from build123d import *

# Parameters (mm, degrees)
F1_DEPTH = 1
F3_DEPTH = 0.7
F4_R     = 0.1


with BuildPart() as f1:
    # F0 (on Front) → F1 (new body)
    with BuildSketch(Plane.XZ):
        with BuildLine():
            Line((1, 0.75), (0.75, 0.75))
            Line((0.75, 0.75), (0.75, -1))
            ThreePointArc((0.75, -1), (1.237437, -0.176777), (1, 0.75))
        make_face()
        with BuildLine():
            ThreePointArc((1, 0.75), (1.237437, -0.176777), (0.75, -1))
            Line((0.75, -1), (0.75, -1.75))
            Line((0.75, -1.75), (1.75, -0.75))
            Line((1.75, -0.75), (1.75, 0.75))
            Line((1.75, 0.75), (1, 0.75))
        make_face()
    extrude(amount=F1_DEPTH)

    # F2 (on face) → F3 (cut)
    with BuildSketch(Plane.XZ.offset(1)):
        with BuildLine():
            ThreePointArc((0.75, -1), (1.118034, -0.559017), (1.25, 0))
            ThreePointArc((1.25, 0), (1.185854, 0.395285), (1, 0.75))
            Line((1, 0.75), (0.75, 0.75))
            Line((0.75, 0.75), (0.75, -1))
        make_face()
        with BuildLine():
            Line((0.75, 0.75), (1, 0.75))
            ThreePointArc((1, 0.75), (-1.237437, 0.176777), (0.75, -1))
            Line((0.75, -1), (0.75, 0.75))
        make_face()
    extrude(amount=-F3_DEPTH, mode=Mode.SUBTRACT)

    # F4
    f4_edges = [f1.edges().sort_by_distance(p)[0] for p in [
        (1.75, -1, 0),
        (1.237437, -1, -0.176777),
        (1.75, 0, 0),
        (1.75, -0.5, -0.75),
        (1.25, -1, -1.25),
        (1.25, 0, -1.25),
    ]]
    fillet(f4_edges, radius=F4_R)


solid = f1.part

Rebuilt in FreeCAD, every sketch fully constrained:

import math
import FreeCAD as App
import Part
import Sketcher

V = App.Vector
Q = App.Units.Quantity


def edges_at(feature, points):
    """Names of the edges that pass closest to the given points."""
    edges = feature.Shape.Edges
    near = lambda p: min(range(len(edges)), key=lambda i: edges[i].distToShape(Part.Vertex(*p))[0])
    return sorted({f"Edge{near(p) + 1}" for p in points})


def add_polygon(sketch, points):
    """Adds a closed chain of lines whose ends are joined by coincident constraints."""
    first, n = sketch.GeometryCount, len(points)
    for a, b in zip(points, points[1:] + points[:1]):
        sketch.addGeometry(Part.LineSegment(App.Vector(*a, 0), App.Vector(*b, 0)), False)
    for i in range(n):
        sketch.addConstraint(Sketcher.Constraint("Coincident", first + i, 2, first + (i + 1) % n, 1))

doc = App.newDocument("Part")
params = doc.addObject("Spreadsheet::Sheet", "Params")
for row, (alias, value) in enumerate([
    ("sketch1_width", "1 mm"),
    ("sketch1_height", "2.5 mm"),
    ("pad1_length", "1 mm"),
    ("sketch2_radius", "1.25 mm"),
    ("pocket1_length", "0.7 mm"),
    ("fillet_radius", "0.1 mm"),
], start=1):
    params.set(f"A{row}", alias)
    params.set(f"B{row}", "=" + value)
    params.setAlias(f"B{row}", alias)

body = doc.addObject("PartDesign::Body", "Body")

# Sketch on XZ plane
sketch1 = doc.addObject("Sketcher::SketchObject", "Sketch")
body.addObject(sketch1)
sketch1.AttachmentSupport = (doc.XZ_Plane, [""])
sketch1.MapMode = "FlatFace"
add_polygon(sketch1, [(0.8, 0.8), (0.8, -1.8), (1.8, -0.8), (1.8, 0.8)])  # lines 0-3
sketch1.addConstraint(Sketcher.Constraint("Vertical", 0))
sketch1.addConstraint(Sketcher.Constraint("Vertical", 2))
sketch1.addConstraint(Sketcher.Constraint("Horizontal", 3))
sketch1.addConstraint(Sketcher.Constraint("DistanceX", 3, 2, 3, 1, 1.0))
sketch1.addConstraint(Sketcher.Constraint("Angle", 1, Q("45 deg")))
sketch1.addConstraint(Sketcher.Constraint("DistanceY", 0, 2, 0, 1, 2.5))
sketch1.addConstraint(Sketcher.Constraint("DistanceX", -1, 1, 0, 2, 0.75))
sketch1.addConstraint(Sketcher.Constraint("DistanceY", 0, 2, -1, 1, 1.75))
sketch1.setExpression("Constraints[7]", "Params.sketch1_width")
sketch1.setExpression("Constraints[9]", "Params.sketch1_height")
pad1 = doc.addObject("PartDesign::Pad", "Pad")
body.addObject(pad1)
pad1.Profile = sketch1
pad1.setExpression("Length", "Params.pad1_length")

# Sketch on XZ plane
sketch2 = doc.addObject("Sketcher::SketchObject", "Sketch001")
body.addObject(sketch2)
sketch2.AttachmentSupport = (doc.XZ_Plane, [""])
sketch2.MapMode = "FlatFace"
sketch2.AttachmentOffset = App.Placement(V(0, 0, 1), App.Rotation())
sketch2.addGeometry(Part.ArcOfCircle(Part.Circle(V(0, 0, 0), V(0, 0, 1), 1.2), math.radians(-53), math.radians(0)), False)
sketch2.addGeometry(Part.ArcOfCircle(Part.Circle(V(0, 0, 0), V(0, 0, 1), 1.3), math.radians(0), math.radians(37)), False)
sketch2.addGeometry(Part.ArcOfCircle(Part.Circle(V(0, 0, 0), V(0, 0, 1), 1.3), math.radians(37), math.radians(307)), False)
sketch2.addConstraint(Sketcher.Constraint("Tangent", 0, 2, 1, 1))
sketch2.addConstraint(Sketcher.Constraint("Tangent", 1, 2, 2, 1))
sketch2.addConstraint(Sketcher.Constraint("Tangent", 2, 2, 0, 1))
sketch2.addConstraint(Sketcher.Constraint("Coincident", 0, 3, -1, 1))
sketch2.addConstraint(Sketcher.Constraint("PointOnObject", 0, 2, -1))
sketch2.addConstraint(Sketcher.Constraint("Radius", 0, 1.25))
sketch2.addConstraint(Sketcher.Constraint("DistanceX", -1, 1, 1, 2, 1.0))
sketch2.addConstraint(Sketcher.Constraint("DistanceY", 2, 2, -1, 1, 1.0))
sketch2.setExpression("Constraints[5]", "Params.sketch2_radius")
pocket1 = doc.addObject("PartDesign::Pocket", "Pocket")
body.addObject(pocket1)
pocket1.Profile = sketch2
pocket1.setExpression("Length", "Params.pocket1_length")
doc.recompute()

fillet = doc.addObject("PartDesign::Fillet", "Fillet")
body.addObject(fillet)
fillet.Base = (pocket1, edges_at(pocket1, [
    (1.75, -1, 0),
    (1.118, -1, -0.559),
    (1.75, 0, 0),
    (1.75, -0.5, -0.75),
    (1.25, -1, -1.25),
    (1.25, 0, -1.25),
]))
fillet.setExpression("Radius", "Params.fillet_radius")

doc.recompute()
